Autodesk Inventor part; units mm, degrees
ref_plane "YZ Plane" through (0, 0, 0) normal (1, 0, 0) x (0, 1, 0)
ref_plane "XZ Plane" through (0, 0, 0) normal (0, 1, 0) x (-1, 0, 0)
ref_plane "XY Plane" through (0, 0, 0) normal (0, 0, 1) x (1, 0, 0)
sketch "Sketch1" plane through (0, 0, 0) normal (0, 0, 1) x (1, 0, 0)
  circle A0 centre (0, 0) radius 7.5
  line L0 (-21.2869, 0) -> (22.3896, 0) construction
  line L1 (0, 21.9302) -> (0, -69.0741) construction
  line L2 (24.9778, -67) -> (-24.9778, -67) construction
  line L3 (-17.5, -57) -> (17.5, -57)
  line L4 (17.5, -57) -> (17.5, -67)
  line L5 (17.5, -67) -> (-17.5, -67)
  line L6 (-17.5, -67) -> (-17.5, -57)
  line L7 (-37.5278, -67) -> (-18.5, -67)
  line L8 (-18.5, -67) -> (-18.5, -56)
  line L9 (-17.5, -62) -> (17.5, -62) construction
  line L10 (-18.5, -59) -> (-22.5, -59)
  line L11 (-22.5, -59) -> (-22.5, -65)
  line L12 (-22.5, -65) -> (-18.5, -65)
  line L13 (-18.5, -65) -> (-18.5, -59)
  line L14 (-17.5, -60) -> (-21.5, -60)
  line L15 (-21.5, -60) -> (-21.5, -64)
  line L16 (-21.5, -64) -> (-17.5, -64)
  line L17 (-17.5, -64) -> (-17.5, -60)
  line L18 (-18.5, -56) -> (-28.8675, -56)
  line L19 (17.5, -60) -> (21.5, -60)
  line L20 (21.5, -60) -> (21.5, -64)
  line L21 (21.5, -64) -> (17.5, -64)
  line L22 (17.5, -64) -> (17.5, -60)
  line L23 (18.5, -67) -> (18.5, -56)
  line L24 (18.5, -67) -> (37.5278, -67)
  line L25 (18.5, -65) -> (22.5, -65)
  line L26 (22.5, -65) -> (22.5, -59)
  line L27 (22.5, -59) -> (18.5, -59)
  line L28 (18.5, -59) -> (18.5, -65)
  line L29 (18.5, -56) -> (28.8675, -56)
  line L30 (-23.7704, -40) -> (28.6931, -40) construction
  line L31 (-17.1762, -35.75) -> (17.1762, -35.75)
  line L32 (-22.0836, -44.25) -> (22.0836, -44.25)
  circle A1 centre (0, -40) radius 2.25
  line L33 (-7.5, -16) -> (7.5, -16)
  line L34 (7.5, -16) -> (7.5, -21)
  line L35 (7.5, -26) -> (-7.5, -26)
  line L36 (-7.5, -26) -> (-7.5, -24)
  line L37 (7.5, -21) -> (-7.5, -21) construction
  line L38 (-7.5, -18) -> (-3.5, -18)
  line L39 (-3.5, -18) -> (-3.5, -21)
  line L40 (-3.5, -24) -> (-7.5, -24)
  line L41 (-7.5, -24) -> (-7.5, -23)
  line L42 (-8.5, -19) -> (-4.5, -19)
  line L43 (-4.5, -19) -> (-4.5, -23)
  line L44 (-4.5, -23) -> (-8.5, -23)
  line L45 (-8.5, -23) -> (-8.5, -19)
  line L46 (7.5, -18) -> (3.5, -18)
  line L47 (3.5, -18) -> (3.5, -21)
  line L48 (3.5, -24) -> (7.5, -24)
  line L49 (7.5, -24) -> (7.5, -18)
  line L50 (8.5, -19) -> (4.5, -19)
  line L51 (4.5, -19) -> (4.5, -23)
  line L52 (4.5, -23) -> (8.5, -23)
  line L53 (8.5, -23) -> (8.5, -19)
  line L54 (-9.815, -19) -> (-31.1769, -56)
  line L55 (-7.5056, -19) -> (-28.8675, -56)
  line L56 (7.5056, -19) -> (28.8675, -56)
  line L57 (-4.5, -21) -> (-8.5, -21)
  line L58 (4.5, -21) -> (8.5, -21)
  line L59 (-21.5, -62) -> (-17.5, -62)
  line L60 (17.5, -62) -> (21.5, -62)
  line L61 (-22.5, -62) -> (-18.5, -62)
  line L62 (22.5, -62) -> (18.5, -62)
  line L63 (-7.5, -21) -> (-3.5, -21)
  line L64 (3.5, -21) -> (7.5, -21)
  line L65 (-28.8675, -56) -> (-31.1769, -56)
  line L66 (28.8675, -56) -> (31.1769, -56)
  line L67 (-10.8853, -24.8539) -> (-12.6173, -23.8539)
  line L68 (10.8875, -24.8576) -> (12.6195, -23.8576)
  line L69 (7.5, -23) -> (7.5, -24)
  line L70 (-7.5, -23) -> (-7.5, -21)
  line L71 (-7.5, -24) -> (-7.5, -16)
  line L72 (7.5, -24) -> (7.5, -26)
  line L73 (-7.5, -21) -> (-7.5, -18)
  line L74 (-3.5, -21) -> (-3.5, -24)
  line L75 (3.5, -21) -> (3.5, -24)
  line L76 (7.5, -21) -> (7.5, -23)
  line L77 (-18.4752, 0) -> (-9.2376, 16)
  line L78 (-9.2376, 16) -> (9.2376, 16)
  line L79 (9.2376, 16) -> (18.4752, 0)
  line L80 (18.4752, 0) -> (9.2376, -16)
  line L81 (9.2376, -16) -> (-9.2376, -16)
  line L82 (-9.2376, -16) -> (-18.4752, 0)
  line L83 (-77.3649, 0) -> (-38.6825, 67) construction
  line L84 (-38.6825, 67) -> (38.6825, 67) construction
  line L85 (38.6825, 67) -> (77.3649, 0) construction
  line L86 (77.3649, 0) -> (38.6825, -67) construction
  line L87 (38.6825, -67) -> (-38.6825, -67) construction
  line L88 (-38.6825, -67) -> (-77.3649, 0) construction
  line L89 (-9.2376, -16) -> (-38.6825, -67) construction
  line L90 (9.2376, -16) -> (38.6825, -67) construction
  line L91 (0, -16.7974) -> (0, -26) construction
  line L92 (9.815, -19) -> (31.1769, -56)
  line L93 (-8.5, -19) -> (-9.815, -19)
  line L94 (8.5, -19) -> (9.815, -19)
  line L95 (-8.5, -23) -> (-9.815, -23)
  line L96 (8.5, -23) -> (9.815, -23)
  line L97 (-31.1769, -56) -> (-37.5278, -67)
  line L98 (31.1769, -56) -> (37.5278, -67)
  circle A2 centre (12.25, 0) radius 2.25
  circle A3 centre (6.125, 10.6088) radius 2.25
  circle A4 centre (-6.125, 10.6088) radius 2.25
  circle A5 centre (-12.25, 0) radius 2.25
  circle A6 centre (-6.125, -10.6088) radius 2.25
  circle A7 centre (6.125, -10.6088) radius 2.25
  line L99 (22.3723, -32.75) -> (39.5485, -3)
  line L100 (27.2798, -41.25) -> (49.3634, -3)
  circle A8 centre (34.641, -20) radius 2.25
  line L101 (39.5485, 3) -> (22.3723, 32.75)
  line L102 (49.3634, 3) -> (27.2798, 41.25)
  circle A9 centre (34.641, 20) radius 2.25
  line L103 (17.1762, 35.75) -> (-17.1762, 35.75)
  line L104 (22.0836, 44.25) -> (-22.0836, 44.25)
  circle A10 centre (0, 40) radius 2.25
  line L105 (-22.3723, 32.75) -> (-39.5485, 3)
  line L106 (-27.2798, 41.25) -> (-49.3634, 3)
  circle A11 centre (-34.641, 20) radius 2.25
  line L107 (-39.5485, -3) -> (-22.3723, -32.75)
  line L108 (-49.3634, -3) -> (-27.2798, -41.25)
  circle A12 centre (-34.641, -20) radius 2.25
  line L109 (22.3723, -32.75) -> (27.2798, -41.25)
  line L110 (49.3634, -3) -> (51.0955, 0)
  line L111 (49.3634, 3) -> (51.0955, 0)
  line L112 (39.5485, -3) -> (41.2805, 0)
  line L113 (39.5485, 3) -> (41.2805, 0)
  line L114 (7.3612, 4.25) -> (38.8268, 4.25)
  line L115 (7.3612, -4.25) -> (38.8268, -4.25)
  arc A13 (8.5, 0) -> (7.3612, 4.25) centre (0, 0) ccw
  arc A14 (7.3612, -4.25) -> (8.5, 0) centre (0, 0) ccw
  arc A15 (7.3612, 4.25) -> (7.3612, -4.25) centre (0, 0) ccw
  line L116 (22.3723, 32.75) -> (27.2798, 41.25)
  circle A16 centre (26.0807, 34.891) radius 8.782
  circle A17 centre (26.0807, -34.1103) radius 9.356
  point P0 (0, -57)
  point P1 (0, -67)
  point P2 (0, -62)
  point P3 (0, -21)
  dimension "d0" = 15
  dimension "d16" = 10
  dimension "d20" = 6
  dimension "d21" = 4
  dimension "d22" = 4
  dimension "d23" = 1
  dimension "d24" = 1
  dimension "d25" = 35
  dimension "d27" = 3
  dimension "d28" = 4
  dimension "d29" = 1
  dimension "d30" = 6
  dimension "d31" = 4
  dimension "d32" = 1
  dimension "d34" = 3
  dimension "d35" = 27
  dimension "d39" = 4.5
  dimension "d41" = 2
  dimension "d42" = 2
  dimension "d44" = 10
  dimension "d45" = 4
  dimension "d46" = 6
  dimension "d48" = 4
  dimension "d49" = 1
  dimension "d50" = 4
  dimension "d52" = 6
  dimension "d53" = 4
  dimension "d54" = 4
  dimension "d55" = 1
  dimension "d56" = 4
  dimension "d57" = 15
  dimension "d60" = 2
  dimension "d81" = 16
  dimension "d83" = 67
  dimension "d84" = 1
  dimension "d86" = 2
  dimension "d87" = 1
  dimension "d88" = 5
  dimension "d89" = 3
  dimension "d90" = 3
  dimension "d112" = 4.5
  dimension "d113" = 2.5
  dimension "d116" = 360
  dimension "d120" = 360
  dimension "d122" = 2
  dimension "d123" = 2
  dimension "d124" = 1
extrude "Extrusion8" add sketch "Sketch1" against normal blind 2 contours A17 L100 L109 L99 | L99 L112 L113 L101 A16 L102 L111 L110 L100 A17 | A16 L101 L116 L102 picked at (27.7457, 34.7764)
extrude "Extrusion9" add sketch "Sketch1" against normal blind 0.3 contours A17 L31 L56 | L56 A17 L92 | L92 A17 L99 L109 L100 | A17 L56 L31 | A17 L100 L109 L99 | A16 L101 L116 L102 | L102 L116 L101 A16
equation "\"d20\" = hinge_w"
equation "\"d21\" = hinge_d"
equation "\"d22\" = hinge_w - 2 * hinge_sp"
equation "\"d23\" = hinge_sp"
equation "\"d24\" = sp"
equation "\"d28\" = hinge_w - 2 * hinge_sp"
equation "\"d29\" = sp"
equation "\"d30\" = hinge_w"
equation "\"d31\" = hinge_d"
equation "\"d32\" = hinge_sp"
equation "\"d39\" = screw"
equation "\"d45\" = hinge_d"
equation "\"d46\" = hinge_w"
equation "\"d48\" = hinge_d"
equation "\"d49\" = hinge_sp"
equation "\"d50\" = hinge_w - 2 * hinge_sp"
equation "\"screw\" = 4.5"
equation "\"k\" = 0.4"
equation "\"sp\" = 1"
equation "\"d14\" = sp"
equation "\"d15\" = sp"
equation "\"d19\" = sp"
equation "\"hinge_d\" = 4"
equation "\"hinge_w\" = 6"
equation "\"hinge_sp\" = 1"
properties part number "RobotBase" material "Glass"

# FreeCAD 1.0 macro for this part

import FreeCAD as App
import Part
import Sketcher
Q = App.Units.Quantity

doc = App.newDocument("Part")
body = doc.addObject("PartDesign::Body", "Body")

sketch1 = body.newObject("Sketcher::SketchObject", "Sketch")
sketch1.AttachmentSupport = (doc.getObject("XY_Plane"), [""])
sketch1.MapMode = "FlatFace"
sketch1.addGeometry([
    Part.LineSegment(App.Vector(27.3, -41.2, 0), App.Vector(49.4, -3, 0)),
    Part.LineSegment(App.Vector(49.4, -3, 0), App.Vector(51.1, 0, 0)),
    Part.LineSegment(App.Vector(51.1, 0, 0), App.Vector(49.4, 3, 0)),
    Part.LineSegment(App.Vector(49.4, 3, 0), App.Vector(27.3, 41.2, 0)),
    Part.LineSegment(App.Vector(27.3, 41.2, 0), App.Vector(22.4, 32.8, 0)),
    Part.LineSegment(App.Vector(22.4, 32.8, 0), App.Vector(39.5, 3, 0)),
    Part.LineSegment(App.Vector(39.5, 3, 0), App.Vector(41.3, 0, 0)),
    Part.LineSegment(App.Vector(41.3, 0, 0), App.Vector(39.5, -3, 0)),
    Part.LineSegment(App.Vector(39.5, -3, 0), App.Vector(22.4, -32.8, 0)),
    Part.LineSegment(App.Vector(22.4, -32.8, 0), App.Vector(27.3, -41.2, 0)),
    Part.Circle(App.Vector(34.6, 20, 0), App.Vector(0, 0, 1), 2.2),
    Part.Circle(App.Vector(34.6, -20, 0), App.Vector(0, 0, 1), 2.2),
], False)
sketch1.addConstraint([
    Sketcher.Constraint("Coincident", 0, 2, 1, 1),
    Sketcher.Constraint("Coincident", 1, 2, 2, 1),
    Sketcher.Constraint("Coincident", 2, 2, 3, 1),
    Sketcher.Constraint("Coincident", 3, 2, 4, 1),
    Sketcher.Constraint("Coincident", 4, 2, 5, 1),
    Sketcher.Constraint("Coincident", 5, 2, 6, 1),
    Sketcher.Constraint("Coincident", 6, 2, 7, 1),
    Sketcher.Constraint("Coincident", 7, 2, 8, 1),
    Sketcher.Constraint("Coincident", 8, 2, 9, 1),
    Sketcher.Constraint("Coincident", 9, 2, 0, 1),
    Sketcher.Constraint("Equal", 10, 11),
    Sketcher.Constraint("Symmetric", 10, 3, 11, 3, -1),
    Sketcher.Constraint("Symmetric", 0, 2, 2, 2, -1),
    Sketcher.Constraint("Symmetric", 5, 2, 7, 2, -1),
    Sketcher.Constraint("Symmetric", 4, 2, 8, 2, -1),
    Sketcher.Constraint("Symmetric", 3, 2, 9, 2, -1),
    Sketcher.Constraint("PointOnObject", 1, 2, -1),
    Sketcher.Constraint("PointOnObject", 6, 2, -1),
    Sketcher.Constraint("Parallel", 0, 1),
    Sketcher.Constraint("Parallel", 1, 4),
    Sketcher.Constraint("Parallel", 3, 5),
    Sketcher.Constraint("Parallel", 5, 6),
    Sketcher.Constraint("Horizontal", 2, 2, 5, 2),
    Sketcher.Constraint("Diameter", 10, 4.5),
    Sketcher.Constraint("DistanceY", 0, 2, -1, 1, 3.0),
    Sketcher.Constraint("Angle", 0, Q("60 deg")),
    Sketcher.Constraint("DistanceY", -1, 1, 10, 3, 20.0),
    Sketcher.Constraint("DistanceY", 4, 2, 3, 2, 8.5),
    Sketcher.Constraint("DistanceY", -1, 1, 3, 2, 41.25),
    Sketcher.Constraint("DistanceX", -1, 1, 10, 3, 34.641),
    Sketcher.Constraint("DistanceX", -1, 1, 0, 2, 49.3634),
])
pad1 = body.newObject("PartDesign::Pad", "Pad")
pad1.Profile = sketch1
pad1.Length = 2
pad1.Reversed = True

sketch2 = body.newObject("Sketcher::SketchObject", "Sketch001")
sketch2.AttachmentSupport = (doc.getObject("XY_Plane"), [""])
sketch2.MapMode = "FlatFace"
sketch2.addGeometry([
    Part.Circle(App.Vector(26, -34, 0), App.Vector(0, 0, 1), 9),
    Part.Circle(App.Vector(26, 35, 0), App.Vector(0, 0, 1), 9),
], False)
sketch2.addConstraint([
    Sketcher.Constraint("Vertical", 0, 3, 1, 3),
    Sketcher.Constraint("Diameter", 0, 18.712),
    Sketcher.Constraint("Diameter", 1, 17.564),
    Sketcher.Constraint("DistanceY", -1, 1, 1, 3, 34.891),
    Sketcher.Constraint("DistanceX", -1, 1, 0, 3, 26.0807),
    Sketcher.Constraint("DistanceY", 0, 3, -1, 1, 34.1103),
])
pad2 = body.newObject("PartDesign::Pad", "Pad001")
pad2.Profile = sketch2
pad2.Length = 0.3
pad2.Reversed = True

doc.recompute()
